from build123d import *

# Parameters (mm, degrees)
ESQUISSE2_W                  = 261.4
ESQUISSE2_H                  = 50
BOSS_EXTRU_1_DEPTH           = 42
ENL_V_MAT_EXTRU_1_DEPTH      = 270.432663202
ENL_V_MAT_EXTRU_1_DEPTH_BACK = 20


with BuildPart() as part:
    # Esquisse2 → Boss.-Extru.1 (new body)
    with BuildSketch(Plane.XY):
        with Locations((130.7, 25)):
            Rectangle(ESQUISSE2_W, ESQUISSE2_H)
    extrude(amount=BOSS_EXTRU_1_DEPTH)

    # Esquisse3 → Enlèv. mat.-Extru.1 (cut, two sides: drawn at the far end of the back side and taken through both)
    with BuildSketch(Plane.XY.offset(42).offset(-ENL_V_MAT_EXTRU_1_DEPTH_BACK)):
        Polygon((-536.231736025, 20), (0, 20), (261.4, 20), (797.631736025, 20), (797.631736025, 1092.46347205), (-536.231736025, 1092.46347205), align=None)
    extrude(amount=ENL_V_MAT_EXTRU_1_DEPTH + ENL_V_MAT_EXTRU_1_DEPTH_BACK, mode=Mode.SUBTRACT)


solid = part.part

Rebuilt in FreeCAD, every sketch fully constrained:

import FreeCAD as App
import Part
import Sketcher
from FreeCAD import Vector
Q = App.Units.Quantity


def add_polygon(sketch, points):
    """Adds a closed chain of lines whose ends are joined by coincident constraints."""
    first, n = sketch.GeometryCount, len(points)
    for a, b in zip(points, points[1:] + points[:1]):
        sketch.addGeometry(Part.LineSegment(App.Vector(*a, 0), App.Vector(*b, 0)), False)
    for i in range(n):
        sketch.addConstraint(Sketcher.Constraint("Coincident", first + i, 2, first + (i + 1) % n, 1))

doc = App.newDocument("Part")
params = doc.addObject("Spreadsheet::Sheet", "Params")
for row, (alias, value) in enumerate([
    ("sketch1_height", "50 mm"),
    ("sketch1_width", "261.4 mm"),
    ("pad1_length", "42 mm"),
    ("pocket1_length", "270.432663 mm"),
    ("pocket1_length2", "20 mm"),
], start=1):
    params.set(f"A{row}", alias)
    params.set(f"B{row}", "=" + value)
    params.setAlias(f"B{row}", alias)

body = doc.addObject("PartDesign::Body", "Body")

# Sketch on XY plane
sketch1 = doc.addObject("Sketcher::SketchObject", "Sketch")
body.addObject(sketch1)
sketch1.AttachmentSupport = (doc.XY_Plane, [""])
sketch1.MapMode = "FlatFace"
add_polygon(sketch1, [(0, 50), (0, 0), (261, 0), (261, 50)])  # lines 0-3
sketch1.addConstraint(Sketcher.Constraint("Vertical", 0))
sketch1.addConstraint(Sketcher.Constraint("Horizontal", 1))
sketch1.addConstraint(Sketcher.Constraint("Vertical", 2))
sketch1.addConstraint(Sketcher.Constraint("Horizontal", 3))
sketch1.addConstraint(Sketcher.Constraint("Coincident", 0, 2, -1, 1))
sketch1.addConstraint(Sketcher.Constraint("DistanceY", 0, 2, 0, 1, Q("50 mm")))
sketch1.addConstraint(Sketcher.Constraint("DistanceX", 1, 1, 1, 2, Q("261.4 mm")))
sketch1.setExpression("Constraints[9]", "Params.sketch1_height")
sketch1.setExpression("Constraints[10]", "Params.sketch1_width")
pad1 = doc.addObject("PartDesign::Pad", "Pad")
body.addObject(pad1)
pad1.Profile = sketch1
pad1.setExpression("Length", "Params.pad1_length")

# Sketch on XY plane
sketch2 = doc.addObject("Sketcher::SketchObject", "Sketch001")
body.addObject(sketch2)
sketch2.AttachmentSupport = (doc.XY_Plane, [""])
sketch2.MapMode = "FlatFace"
sketch2.AttachmentOffset = App.Placement(Vector(0, 0, 42), App.Rotation())
add_polygon(sketch2, [(-536, 20), (798, 20), (798, 1092), (-536, 1092)])  # lines 0-3
sketch2.addConstraint(Sketcher.Constraint("Horizontal", 0))
sketch2.addConstraint(Sketcher.Constraint("Vertical", 1))
sketch2.addConstraint(Sketcher.Constraint("Horizontal", 2))
sketch2.addConstraint(Sketcher.Constraint("Vertical", 3))
sketch2.addConstraint(Sketcher.Constraint("DistanceY", -1, 1, 0, 2, Q("20 mm")))
sketch2.addConstraint(Sketcher.Constraint("DistanceX", 0, 1, 0, 2, Q("1333.863472 mm")))
sketch2.addConstraint(Sketcher.Constraint("DistanceY", 1, 1, 1, 2, Q("1072.463472 mm")))
sketch2.addConstraint(Sketcher.Constraint("DistanceX", -1, 1, 0, 2, Q("797.631736 mm")))
pocket1 = doc.addObject("PartDesign::Pocket", "Pocket")
body.addObject(pocket1)
pocket1.Profile = sketch2
pocket1.Type = "TwoLengths"
pocket1.setExpression("Length", "Params.pocket1_length")
pocket1.setExpression("Length2", "Params.pocket1_length2")
pocket1.Reversed = True

doc.recompute()
